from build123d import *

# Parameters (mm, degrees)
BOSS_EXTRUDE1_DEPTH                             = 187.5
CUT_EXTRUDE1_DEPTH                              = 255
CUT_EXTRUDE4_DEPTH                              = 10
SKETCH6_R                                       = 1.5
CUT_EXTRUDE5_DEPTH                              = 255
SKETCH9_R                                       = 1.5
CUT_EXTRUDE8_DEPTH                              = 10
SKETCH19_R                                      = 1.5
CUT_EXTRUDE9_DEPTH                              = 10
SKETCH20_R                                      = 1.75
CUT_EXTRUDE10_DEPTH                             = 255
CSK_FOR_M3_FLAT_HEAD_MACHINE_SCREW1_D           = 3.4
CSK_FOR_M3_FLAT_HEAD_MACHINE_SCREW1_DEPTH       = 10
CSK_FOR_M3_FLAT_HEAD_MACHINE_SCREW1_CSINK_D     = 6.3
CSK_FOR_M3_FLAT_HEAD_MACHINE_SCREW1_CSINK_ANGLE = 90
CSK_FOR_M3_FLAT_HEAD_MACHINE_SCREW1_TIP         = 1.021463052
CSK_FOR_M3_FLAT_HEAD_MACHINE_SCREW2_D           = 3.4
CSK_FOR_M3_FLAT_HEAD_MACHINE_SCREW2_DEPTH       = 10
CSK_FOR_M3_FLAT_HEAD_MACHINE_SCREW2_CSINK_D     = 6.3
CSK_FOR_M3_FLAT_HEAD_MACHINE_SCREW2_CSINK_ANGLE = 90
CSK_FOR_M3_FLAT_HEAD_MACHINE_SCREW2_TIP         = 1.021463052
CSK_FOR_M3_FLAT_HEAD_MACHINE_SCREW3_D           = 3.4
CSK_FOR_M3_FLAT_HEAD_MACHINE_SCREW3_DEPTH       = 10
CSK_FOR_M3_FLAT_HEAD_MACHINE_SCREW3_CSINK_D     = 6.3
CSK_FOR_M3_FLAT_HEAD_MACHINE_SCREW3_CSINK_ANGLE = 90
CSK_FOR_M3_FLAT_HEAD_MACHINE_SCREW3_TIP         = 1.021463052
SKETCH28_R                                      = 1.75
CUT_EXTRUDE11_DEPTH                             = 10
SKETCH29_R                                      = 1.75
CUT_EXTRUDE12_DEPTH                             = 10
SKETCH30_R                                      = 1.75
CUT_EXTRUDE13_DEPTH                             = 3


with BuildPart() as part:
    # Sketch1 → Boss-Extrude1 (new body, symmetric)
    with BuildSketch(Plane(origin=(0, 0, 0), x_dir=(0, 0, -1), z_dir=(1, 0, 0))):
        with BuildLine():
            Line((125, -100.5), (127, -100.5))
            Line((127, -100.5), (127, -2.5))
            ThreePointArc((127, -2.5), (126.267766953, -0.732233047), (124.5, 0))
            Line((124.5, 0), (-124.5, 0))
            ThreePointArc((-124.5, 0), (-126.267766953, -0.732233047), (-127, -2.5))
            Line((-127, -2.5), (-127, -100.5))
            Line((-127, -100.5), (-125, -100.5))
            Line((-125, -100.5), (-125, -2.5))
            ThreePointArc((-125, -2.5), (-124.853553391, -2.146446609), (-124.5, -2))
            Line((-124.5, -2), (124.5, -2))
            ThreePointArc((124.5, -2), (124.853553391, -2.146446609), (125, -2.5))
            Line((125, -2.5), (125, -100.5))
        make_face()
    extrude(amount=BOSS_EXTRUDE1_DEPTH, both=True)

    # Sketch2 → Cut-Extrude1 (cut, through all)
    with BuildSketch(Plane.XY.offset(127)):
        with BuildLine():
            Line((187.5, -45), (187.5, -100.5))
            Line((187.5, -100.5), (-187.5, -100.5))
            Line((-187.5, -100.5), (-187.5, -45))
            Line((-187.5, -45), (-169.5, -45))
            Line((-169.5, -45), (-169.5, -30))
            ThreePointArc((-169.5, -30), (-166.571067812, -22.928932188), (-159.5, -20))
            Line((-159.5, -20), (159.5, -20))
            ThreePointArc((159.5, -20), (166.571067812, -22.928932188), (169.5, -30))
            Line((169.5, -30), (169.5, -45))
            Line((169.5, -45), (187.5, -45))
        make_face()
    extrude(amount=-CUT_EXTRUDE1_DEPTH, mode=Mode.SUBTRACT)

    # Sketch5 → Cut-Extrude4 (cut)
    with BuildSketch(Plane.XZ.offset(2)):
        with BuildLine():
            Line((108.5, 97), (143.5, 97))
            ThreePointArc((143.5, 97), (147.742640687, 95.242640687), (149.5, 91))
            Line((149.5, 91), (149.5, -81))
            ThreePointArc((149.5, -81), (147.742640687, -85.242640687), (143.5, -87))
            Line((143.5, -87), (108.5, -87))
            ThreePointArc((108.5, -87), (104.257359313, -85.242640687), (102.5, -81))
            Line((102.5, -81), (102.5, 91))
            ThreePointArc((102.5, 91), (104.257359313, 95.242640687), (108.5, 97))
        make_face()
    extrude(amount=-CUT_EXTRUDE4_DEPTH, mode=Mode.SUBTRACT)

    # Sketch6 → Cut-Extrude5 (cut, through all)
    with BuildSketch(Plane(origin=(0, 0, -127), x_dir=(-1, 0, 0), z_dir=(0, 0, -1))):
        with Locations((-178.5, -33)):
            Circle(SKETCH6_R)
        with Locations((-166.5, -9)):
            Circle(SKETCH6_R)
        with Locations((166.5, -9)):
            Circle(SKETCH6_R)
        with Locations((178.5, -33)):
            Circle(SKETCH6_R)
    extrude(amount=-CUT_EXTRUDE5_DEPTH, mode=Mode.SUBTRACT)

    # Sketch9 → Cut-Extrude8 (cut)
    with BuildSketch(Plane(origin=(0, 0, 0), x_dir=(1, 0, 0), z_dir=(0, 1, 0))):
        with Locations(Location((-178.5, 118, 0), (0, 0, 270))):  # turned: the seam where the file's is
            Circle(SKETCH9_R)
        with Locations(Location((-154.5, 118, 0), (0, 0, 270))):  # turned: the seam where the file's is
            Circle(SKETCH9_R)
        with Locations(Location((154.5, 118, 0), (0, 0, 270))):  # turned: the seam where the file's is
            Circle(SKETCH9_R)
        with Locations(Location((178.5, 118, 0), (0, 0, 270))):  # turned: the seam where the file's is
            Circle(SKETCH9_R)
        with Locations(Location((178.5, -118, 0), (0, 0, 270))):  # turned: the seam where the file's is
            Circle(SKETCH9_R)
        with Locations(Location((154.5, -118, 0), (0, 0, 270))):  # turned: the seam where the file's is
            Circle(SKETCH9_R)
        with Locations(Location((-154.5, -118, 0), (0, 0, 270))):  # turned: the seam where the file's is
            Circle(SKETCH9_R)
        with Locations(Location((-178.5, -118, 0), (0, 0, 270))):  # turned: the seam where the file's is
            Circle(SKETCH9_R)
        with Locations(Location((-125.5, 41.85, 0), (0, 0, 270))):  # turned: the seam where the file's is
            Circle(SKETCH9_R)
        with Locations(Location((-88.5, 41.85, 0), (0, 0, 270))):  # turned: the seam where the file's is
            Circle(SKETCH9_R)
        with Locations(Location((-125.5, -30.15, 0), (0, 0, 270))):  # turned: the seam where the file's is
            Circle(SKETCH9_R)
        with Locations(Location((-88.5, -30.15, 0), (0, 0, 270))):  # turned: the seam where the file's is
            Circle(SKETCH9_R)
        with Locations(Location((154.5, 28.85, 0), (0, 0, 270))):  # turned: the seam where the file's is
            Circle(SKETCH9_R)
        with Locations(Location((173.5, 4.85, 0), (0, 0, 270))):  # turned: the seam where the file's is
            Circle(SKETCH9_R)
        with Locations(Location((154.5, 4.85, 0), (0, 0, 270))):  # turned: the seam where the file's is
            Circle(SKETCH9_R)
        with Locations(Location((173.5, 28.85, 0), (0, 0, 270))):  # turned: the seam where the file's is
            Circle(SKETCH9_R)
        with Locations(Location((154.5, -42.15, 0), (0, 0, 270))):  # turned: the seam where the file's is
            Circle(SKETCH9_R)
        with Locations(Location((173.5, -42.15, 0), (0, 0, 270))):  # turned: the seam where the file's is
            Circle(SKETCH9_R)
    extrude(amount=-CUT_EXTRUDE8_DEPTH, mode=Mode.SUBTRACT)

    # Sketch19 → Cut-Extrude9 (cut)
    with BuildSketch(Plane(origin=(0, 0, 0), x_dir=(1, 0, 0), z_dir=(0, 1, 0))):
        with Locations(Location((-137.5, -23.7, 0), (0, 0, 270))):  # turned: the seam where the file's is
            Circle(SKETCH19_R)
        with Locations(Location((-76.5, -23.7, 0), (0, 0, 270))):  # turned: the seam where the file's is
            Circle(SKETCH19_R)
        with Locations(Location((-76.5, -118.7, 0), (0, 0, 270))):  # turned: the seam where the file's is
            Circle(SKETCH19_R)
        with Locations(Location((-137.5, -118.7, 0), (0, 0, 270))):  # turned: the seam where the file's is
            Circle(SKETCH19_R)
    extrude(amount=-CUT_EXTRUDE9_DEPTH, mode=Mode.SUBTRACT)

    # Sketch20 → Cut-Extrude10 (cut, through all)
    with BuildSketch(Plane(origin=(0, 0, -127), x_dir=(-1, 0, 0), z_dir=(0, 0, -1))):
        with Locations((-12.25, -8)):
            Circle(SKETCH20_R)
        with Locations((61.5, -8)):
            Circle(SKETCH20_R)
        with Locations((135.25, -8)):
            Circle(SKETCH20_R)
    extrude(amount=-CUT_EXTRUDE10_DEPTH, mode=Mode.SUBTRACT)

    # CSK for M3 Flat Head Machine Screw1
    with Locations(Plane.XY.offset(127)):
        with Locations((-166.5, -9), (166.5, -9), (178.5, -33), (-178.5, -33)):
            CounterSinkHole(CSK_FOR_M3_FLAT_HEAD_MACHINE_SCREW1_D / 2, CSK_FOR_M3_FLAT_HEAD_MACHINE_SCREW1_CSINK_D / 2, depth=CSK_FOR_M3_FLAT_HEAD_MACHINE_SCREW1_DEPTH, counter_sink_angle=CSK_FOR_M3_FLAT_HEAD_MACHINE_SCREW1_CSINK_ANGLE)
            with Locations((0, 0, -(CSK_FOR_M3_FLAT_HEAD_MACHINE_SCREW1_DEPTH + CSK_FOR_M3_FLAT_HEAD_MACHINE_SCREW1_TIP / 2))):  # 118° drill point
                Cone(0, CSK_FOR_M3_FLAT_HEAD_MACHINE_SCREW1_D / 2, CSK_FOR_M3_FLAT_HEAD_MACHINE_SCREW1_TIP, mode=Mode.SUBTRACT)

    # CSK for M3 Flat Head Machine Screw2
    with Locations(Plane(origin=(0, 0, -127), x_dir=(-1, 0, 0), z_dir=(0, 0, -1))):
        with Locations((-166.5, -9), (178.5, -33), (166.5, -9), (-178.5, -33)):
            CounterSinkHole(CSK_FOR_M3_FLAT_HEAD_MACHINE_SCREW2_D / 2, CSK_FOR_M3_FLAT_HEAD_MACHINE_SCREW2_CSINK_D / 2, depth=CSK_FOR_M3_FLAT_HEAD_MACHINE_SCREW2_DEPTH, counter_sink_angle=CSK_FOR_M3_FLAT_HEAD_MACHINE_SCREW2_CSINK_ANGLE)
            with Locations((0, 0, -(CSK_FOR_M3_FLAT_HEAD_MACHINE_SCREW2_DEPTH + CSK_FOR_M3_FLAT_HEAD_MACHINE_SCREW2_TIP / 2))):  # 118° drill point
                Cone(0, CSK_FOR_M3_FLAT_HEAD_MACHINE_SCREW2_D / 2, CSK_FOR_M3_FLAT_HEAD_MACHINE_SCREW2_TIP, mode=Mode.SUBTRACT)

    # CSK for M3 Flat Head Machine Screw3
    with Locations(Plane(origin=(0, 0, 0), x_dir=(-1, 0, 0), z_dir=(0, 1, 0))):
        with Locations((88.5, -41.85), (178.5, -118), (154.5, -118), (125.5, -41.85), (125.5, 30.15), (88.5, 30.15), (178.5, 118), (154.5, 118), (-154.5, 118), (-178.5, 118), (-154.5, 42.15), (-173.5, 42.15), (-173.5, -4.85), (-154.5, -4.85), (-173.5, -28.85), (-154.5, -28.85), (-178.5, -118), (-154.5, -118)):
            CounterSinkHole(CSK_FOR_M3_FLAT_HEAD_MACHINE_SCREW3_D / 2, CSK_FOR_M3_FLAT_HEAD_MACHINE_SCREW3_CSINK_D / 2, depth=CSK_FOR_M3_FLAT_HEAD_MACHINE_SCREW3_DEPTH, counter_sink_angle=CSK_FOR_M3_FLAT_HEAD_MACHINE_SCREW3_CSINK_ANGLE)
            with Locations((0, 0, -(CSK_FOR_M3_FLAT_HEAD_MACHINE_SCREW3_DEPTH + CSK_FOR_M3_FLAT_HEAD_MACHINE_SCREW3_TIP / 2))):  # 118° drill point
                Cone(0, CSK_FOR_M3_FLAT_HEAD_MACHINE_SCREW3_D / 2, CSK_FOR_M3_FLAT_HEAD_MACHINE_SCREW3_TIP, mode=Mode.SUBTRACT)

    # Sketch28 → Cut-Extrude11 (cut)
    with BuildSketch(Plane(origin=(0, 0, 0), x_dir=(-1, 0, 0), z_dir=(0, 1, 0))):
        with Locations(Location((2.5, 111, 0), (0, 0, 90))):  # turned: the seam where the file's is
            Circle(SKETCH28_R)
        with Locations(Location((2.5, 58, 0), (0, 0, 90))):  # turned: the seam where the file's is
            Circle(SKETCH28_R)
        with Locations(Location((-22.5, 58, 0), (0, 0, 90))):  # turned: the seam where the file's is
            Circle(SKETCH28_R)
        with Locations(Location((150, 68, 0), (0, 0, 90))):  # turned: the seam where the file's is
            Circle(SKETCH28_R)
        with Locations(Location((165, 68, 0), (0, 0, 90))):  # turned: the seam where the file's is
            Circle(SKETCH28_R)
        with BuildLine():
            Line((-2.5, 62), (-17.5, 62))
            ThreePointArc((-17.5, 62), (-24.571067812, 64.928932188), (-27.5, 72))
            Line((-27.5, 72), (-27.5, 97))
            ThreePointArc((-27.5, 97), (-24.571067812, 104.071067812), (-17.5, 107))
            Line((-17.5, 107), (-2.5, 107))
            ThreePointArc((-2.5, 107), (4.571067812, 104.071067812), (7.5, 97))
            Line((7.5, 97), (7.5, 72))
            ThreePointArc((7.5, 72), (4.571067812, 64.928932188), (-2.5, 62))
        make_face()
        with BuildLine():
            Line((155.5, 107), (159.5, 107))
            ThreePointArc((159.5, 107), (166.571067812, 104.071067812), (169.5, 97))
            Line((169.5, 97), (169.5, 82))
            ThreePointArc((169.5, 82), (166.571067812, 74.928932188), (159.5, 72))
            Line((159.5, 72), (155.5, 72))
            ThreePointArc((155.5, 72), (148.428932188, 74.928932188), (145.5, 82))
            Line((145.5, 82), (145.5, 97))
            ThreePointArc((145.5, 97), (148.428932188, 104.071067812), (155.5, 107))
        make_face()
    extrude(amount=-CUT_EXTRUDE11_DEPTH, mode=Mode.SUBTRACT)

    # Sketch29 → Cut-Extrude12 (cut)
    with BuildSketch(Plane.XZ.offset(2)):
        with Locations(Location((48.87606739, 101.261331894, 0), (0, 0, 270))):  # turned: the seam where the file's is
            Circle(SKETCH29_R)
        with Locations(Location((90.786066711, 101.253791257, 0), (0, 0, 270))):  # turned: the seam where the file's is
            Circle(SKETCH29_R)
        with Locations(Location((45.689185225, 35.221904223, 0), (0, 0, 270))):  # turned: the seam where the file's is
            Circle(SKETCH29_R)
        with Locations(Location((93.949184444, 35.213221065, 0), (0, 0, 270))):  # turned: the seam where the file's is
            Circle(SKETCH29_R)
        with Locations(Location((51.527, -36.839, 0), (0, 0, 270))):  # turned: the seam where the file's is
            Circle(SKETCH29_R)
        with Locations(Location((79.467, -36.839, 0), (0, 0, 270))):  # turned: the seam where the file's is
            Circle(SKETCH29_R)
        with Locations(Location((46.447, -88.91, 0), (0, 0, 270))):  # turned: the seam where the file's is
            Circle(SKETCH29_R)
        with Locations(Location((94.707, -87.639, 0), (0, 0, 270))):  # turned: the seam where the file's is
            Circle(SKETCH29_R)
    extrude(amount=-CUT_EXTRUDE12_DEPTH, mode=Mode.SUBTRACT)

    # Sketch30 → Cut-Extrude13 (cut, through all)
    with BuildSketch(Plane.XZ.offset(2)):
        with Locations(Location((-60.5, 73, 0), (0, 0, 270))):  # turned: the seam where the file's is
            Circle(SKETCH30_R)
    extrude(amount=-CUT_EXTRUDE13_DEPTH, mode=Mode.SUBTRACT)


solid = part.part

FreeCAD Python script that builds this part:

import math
import FreeCAD as App
import Part
import Sketcher
Q = App.Units.Quantity

doc = App.newDocument("Part")
body = doc.addObject("PartDesign::Body", "Body")

# Sketch on YZ plane
sketch1 = doc.addObject("Sketcher::SketchObject", "Sketch")
body.addObject(sketch1)
sketch1.AttachmentSupport = (doc.YZ_Plane, [""])
sketch1.MapMode = "FlatFace"
sketch1.addGeometry(Part.LineSegment(App.Vector(-100.5, -125, 0), App.Vector(-100.5, -127, 0)), False)
sketch1.addGeometry(Part.LineSegment(App.Vector(-100.5, -127, 0), App.Vector(-2.5, -127, 0)), False)
sketch1.addGeometry(Part.ArcOfCircle(Part.Circle(App.Vector(-2.5, -124.5, 0), App.Vector(0, 0, 1), 2.5), math.radians(-90), math.radians(0)), False)
sketch1.addGeometry(Part.LineSegment(App.Vector(0, -124.5, 0), App.Vector(0, 124.5, 0)), False)
sketch1.addGeometry(Part.ArcOfCircle(Part.Circle(App.Vector(-2.5, 124.5, 0), App.Vector(0, 0, 1), 2.5), math.radians(0), math.radians(90)), False)
sketch1.addGeometry(Part.LineSegment(App.Vector(-2.5, 127, 0), App.Vector(-100.5, 127, 0)), False)
sketch1.addGeometry(Part.LineSegment(App.Vector(-100.5, 127, 0), App.Vector(-100.5, 125, 0)), False)
sketch1.addGeometry(Part.LineSegment(App.Vector(-100.5, 125, 0), App.Vector(-2.5, 125, 0)), False)
sketch1.addGeometry(Part.ArcOfCircle(Part.Circle(App.Vector(-2.5, 124.5, 0), App.Vector(0, 0, 1), 0.5), math.radians(0), math.radians(90)), False)
sketch1.addGeometry(Part.LineSegment(App.Vector(-2, 124.5, 0), App.Vector(-2, -124.5, 0)), False)
sketch1.addGeometry(Part.ArcOfCircle(Part.Circle(App.Vector(-2.5, -124.5, 0), App.Vector(0, 0, 1), 0.5), math.radians(-90), math.radians(0)), False)
sketch1.addGeometry(Part.LineSegment(App.Vector(-2.5, -125, 0), App.Vector(-100.5, -125, 0)), False)
sketch1.addConstraint(Sketcher.Constraint("Coincident", 0, 2, 1, 1))
sketch1.addConstraint(Sketcher.Constraint("Tangent", 1, 2, 2, 1))
sketch1.addConstraint(Sketcher.Constraint("Tangent", 2, 2, 3, 1))
sketch1.addConstraint(Sketcher.Constraint("Tangent", 3, 2, 4, 1))
sketch1.addConstraint(Sketcher.Constraint("Tangent", 4, 2, 5, 1))
sketch1.addConstraint(Sketcher.Constraint("Coincident", 5, 2, 6, 1))
sketch1.addConstraint(Sketcher.Constraint("Coincident", 6, 2, 7, 1))
sketch1.addConstraint(Sketcher.Constraint("Tangent", 7, 2, 8, 2))
sketch1.addConstraint(Sketcher.Constraint("Tangent", 8, 1, 9, 1))
sketch1.addConstraint(Sketcher.Constraint("Tangent", 9, 2, 10, 2))
sketch1.addConstraint(Sketcher.Constraint("Tangent", 10, 1, 11, 1))
sketch1.addConstraint(Sketcher.Constraint("Coincident", 11, 2, 0, 1))
sketch1.addConstraint(Sketcher.Constraint("Vertical", 0))
sketch1.addConstraint(Sketcher.Constraint("Horizontal", 1))
sketch1.addConstraint(Sketcher.Constraint("Vertical", 3))
sketch1.addConstraint(Sketcher.Constraint("Horizontal", 5))
sketch1.addConstraint(Sketcher.Constraint("Vertical", 6))
sketch1.addConstraint(Sketcher.Constraint("Horizontal", 7))
sketch1.addConstraint(Sketcher.Constraint("Vertical", 9))
sketch1.addConstraint(Sketcher.Constraint("Horizontal", 11))
sketch1.addConstraint(Sketcher.Constraint("Coincident", 8, 3, 4, 3))
sketch1.addConstraint(Sketcher.Constraint("Coincident", 10, 3, 2, 3))
sketch1.addConstraint(Sketcher.Constraint("Equal", 2, 4))
sketch1.addConstraint(Sketcher.Constraint("Symmetric", 2, 2, 3, 2, -1, 1))
sketch1.addConstraint(Sketcher.Constraint("Vertical", 0, 2, 5, 2))
sketch1.addConstraint(Sketcher.Constraint("Radius", 2, Q("2.5 mm")))
sketch1.addConstraint(Sketcher.Constraint("Radius", 8, Q("0.5 mm")))
sketch1.addConstraint(Sketcher.Constraint("DistanceX", 1, 1, 1, 2, Q("98 mm")))
sketch1.addConstraint(Sketcher.Constraint("DistanceY", 3, 1, 3, 2, Q("249 mm")))
pad1 = doc.addObject("PartDesign::Pad", "Pad")
body.addObject(pad1)
pad1.Profile = sketch1
pad1.Length = 375
pad1.Midplane = True

# Sketch on XY plane
sketch2 = doc.addObject("Sketcher::SketchObject", "Sketch001")
body.addObject(sketch2)
sketch2.AttachmentSupport = (doc.XY_Plane, [""])
sketch2.MapMode = "FlatFace"
sketch2.AttachmentOffset = App.Placement(App.Vector(0, 0, 127), App.Rotation())
sketch2.addGeometry(Part.LineSegment(App.Vector(188, -100, 0), App.Vector(188, -45, 0)), False)
sketch2.addGeometry(Part.LineSegment(App.Vector(188, -45, 0), App.Vector(170, -45, 0)), False)
sketch2.addGeometry(Part.LineSegment(App.Vector(170, -45, 0), App.Vector(170, -30, 0)), False)
sketch2.addGeometry(Part.ArcOfCircle(Part.Circle(App.Vector(160, -30, 0), App.Vector(0, 0, 1), 10), math.radians(0), math.radians(90)), False)
sketch2.addGeometry(Part.LineSegment(App.Vector(160, -20, 0), App.Vector(-160, -20, 0)), False)
sketch2.addGeometry(Part.ArcOfCircle(Part.Circle(App.Vector(-160, -30, 0), App.Vector(0, 0, 1), 10), math.radians(90), math.radians(180)), False)
sketch2.addGeometry(Part.LineSegment(App.Vector(-170, -30, 0), App.Vector(-170, -45, 0)), False)
sketch2.addGeometry(Part.LineSegment(App.Vector(-170, -45, 0), App.Vector(-188, -45, 0)), False)
sketch2.addGeometry(Part.LineSegment(App.Vector(-188, -45, 0), App.Vector(-188, -100, 0)), False)
sketch2.addGeometry(Part.LineSegment(App.Vector(-188, -100, 0), App.Vector(188, -100, 0)), False)
sketch2.addConstraint(Sketcher.Constraint("Coincident", 0, 2, 1, 1))
sketch2.addConstraint(Sketcher.Constraint("Coincident", 1, 2, 2, 1))
sketch2.addConstraint(Sketcher.Constraint("Tangent", 2, 2, 3, 1))
sketch2.addConstraint(Sketcher.Constraint("Tangent", 3, 2, 4, 1))
sketch2.addConstraint(Sketcher.Constraint("Tangent", 4, 2, 5, 1))
sketch2.addConstraint(Sketcher.Constraint("Tangent", 5, 2, 6, 1))
sketch2.addConstraint(Sketcher.Constraint("Coincident", 6, 2, 7, 1))
sketch2.addConstraint(Sketcher.Constraint("Coincident", 7, 2, 8, 1))
sketch2.addConstraint(Sketcher.Constraint("Coincident", 8, 2, 9, 1))
sketch2.addConstraint(Sketcher.Constraint("Coincident", 9, 2, 0, 1))
sketch2.addConstraint(Sketcher.Constraint("Vertical", 0))
sketch2.addConstraint(Sketcher.Constraint("Horizontal", 1))
sketch2.addConstraint(Sketcher.Constraint("Vertical", 2))
sketch2.addConstraint(Sketcher.Constraint("Horizontal", 4))
sketch2.addConstraint(Sketcher.Constraint("Vertical", 6))
sketch2.addConstraint(Sketcher.Constraint("Horizontal", 7))
sketch2.addConstraint(Sketcher.Constraint("Vertical", 8))
sketch2.addConstraint(Sketcher.Constraint("Horizontal", 9))
sketch2.addConstraint(Sketcher.Constraint("Equal", 3, 5))
sketch2.addConstraint(Sketcher.Constraint("Symmetric", 1, 2, 6, 2, -2))
sketch2.addConstraint(Sketcher.Constraint("Equal", 1, 7))
sketch2.addConstraint(Sketcher.Constraint("Radius", 3, Q("10 mm")))
sketch2.addConstraint(Sketcher.Constraint("DistanceX", 1, 2, 1, 1, Q("18 mm")))
sketch2.addConstraint(Sketcher.Constraint("DistanceX", 4, 2, 4, 1, Q("319 mm")))
sketch2.addConstraint(Sketcher.Constraint("DistanceY", 2, 1, 2, 2, Q("15 mm")))
sketch2.addConstraint(Sketcher.Constraint("DistanceY", 0, 1, 0, 2, Q("55.5 mm")))
sketch2.addConstraint(Sketcher.Constraint("DistanceY", 3, 3, -1, 1, Q("30 mm")))
pocket1 = doc.addObject("PartDesign::Pocket", "Pocket")
body.addObject(pocket1)
pocket1.Profile = sketch2
pocket1.Type = "ThroughAll"

# Sketch on XZ plane
sketch3 = doc.addObject("Sketcher::SketchObject", "Sketch002")
body.addObject(sketch3)
sketch3.AttachmentSupport = (doc.XZ_Plane, [""])
sketch3.MapMode = "FlatFace"
sketch3.AttachmentOffset = App.Placement(App.Vector(0, 0, 2), App.Rotation())
sketch3.addGeometry(Part.LineSegment(App.Vector(144, 97, 0), App.Vector(108, 97, 0)), False)
sketch3.addGeometry(Part.ArcOfCircle(Part.Circle(App.Vector(108, 91, 0), App.Vector(0, 0, 1), 6), math.radians(90), math.radians(180)), False)
sketch3.addGeometry(Part.LineSegment(App.Vector(102, 91, 0), App.Vector(102, -81, 0)), False)
sketch3.addGeometry(Part.ArcOfCircle(Part.Circle(App.Vector(108, -81, 0), App.Vector(0, 0, 1), 6), math.radians(180), math.radians(270)), False)
sketch3.addGeometry(Part.LineSegment(App.Vector(108, -87, 0), App.Vector(144, -87, 0)), False)
sketch3.addGeometry(Part.ArcOfCircle(Part.Circle(App.Vector(144, -81, 0), App.Vector(0, 0, 1), 6), math.radians(-90), math.radians(0)), False)
sketch3.addGeometry(Part.LineSegment(App.Vector(150, -81, 0), App.Vector(150, 91, 0)), False)
sketch3.addGeometry(Part.ArcOfCircle(Part.Circle(App.Vector(144, 91, 0), App.Vector(0, 0, 1), 6), math.radians(0), math.radians(90)), False)
sketch3.addConstraint(Sketcher.Constraint("Tangent", 0, 2, 1, 1))
sketch3.addConstraint(Sketcher.Constraint("Tangent", 1, 2, 2, 1))
sketch3.addConstraint(Sketcher.Constraint("Tangent", 2, 2, 3, 1))
sketch3.addConstraint(Sketcher.Constraint("Tangent", 3, 2, 4, 1))
sketch3.addConstraint(Sketcher.Constraint("Tangent", 4, 2, 5, 1))
sketch3.addConstraint(Sketcher.Constraint("Tangent", 5, 2, 6, 1))
sketch3.addConstraint(Sketcher.Constraint("Tangent", 6, 2, 7, 1))
sketch3.addConstraint(Sketcher.Constraint("Tangent", 7, 2, 0, 1))
sketch3.addConstraint(Sketcher.Constraint("Horizontal", 0))
sketch3.addConstraint(Sketcher.Constraint("Vertical", 2))
sketch3.addConstraint(Sketcher.Constraint("Horizontal", 4))
sketch3.addConstraint(Sketcher.Constraint("Vertical", 6))
sketch3.addConstraint(Sketcher.Constraint("Equal", 1, 3))
sketch3.addConstraint(Sketcher.Constraint("Equal", 3, 5))
sketch3.addConstraint(Sketcher.Constraint("Equal", 5, 7))
sketch3.addConstraint(Sketcher.Constraint("Radius", 1, Q("6 mm")))
sketch3.addConstraint(Sketcher.Constraint("DistanceX", 0, 2, 0, 1, Q("35 mm")))
sketch3.addConstraint(Sketcher.Constraint("DistanceY", 2, 2, 2, 1, Q("172 mm")))
sketch3.addConstraint(Sketcher.Constraint("DistanceY", -1, 1, 1, 3, Q("91 mm")))
sketch3.addConstraint(Sketcher.Constraint("DistanceX", -1, 1, 1, 3, Q("108.5 mm")))
pocket2 = doc.addObject("PartDesign::Pocket", "Pocket001")
body.addObject(pocket2)
pocket2.Profile = sketch3
pocket2.Length = 10

# Sketch on XY plane
sketch4 = doc.addObject("Sketcher::SketchObject", "Sketch003")
body.addObject(sketch4)
sketch4.AttachmentSupport = (doc.XY_Plane, [""])
sketch4.MapMode = "FlatFace"
sketch4.AttachmentOffset = App.Placement(App.Vector(0, 0, -127), App.Rotation())
sketch4.addGeometry(Part.Circle(App.Vector(178.5, -33, 0), App.Vector(0, 0, 1), 1.5), False)
sketch4.addGeometry(Part.Circle(App.Vector(166.5, -9, 0), App.Vector(0, 0, 1), 1.5), False)
sketch4.addGeometry(Part.Circle(App.Vector(-166.5, -9, 0), App.Vector(0, 0, 1), 1.5), False)
sketch4.addGeometry(Part.Circle(App.Vector(-178.5, -33, 0), App.Vector(0, 0, 1), 1.5), False)
sketch4.addConstraint(Sketcher.Constraint("Equal", 0, 1))
sketch4.addConstraint(Sketcher.Constraint("Equal", 1, 2))
sketch4.addConstraint(Sketcher.Constraint("Equal", 2, 3))
sketch4.addConstraint(Sketcher.Constraint("Symmetric", 1, 3, 2, 3, -2))
sketch4.addConstraint(Sketcher.Constraint("Symmetric", 0, 3, 3, 3, -2))
sketch4.addConstraint(Sketcher.Constraint("Diameter", 0, Q("3 mm")))
sketch4.addConstraint(Sketcher.Constraint("DistanceY", 0, 3, -1, 1, Q("33 mm")))
sketch4.addConstraint(Sketcher.Constraint("DistanceY", 1, 3, -1, 1, Q("9 mm")))
sketch4.addConstraint(Sketcher.Constraint("DistanceX", 1, 3, 0, 3, Q("12 mm")))
sketch4.addConstraint(Sketcher.Constraint("DistanceX", 2, 3, 1, 3, Q("333 mm")))
pocket3 = doc.addObject("PartDesign::Pocket", "Pocket002")
body.addObject(pocket3)
pocket3.Profile = sketch4
pocket3.Type = "ThroughAll"
pocket3.Reversed = True

# Sketch on XZ plane
sketch5 = doc.addObject("Sketcher::SketchObject", "Sketch004")
body.addObject(sketch5)
sketch5.AttachmentSupport = (doc.XZ_Plane, [""])
sketch5.MapMode = "FlatFace"
sketch5.addGeometry(Part.Circle(App.Vector(-178.5, -118, 0), App.Vector(0, 0, 1), 1.5), False)
sketch5.addGeometry(Part.Circle(App.Vector(-154.5, -118, 0), App.Vector(0, 0, 1), 1.5), False)
sketch5.addGeometry(Part.Circle(App.Vector(154.5, -118, 0), App.Vector(0, 0, 1), 1.5), False)
sketch5.addGeometry(Part.Circle(App.Vector(178.5, -118, 0), App.Vector(0, 0, 1), 1.5), False)
sketch5.addGeometry(Part.Circle(App.Vector(178.5, 118, 0), App.Vector(0, 0, 1), 1.5), False)
sketch5.addGeometry(Part.Circle(App.Vector(154.5, 118, 0), App.Vector(0, 0, 1), 1.5), False)
sketch5.addGeometry(Part.Circle(App.Vector(-154.5, 118, 0), App.Vector(0, 0, 1), 1.5), False)
sketch5.addGeometry(Part.Circle(App.Vector(-178.5, 118, 0), App.Vector(0, 0, 1), 1.5), False)
sketch5.addGeometry(Part.Circle(App.Vector(-125.5, -41.9, 0), App.Vector(0, 0, 1), 1.5), False)
sketch5.addGeometry(Part.Circle(App.Vector(-88.5, -41.9, 0), App.Vector(0, 0, 1), 1.5), False)
sketch5.addGeometry(Part.Circle(App.Vector(-125.5, 30.1, 0), App.Vector(0, 0, 1), 1.5), False)
sketch5.addGeometry(Part.Circle(App.Vector(-88.5, 30.1, 0), App.Vector(0, 0, 1), 1.5), False)
sketch5.addGeometry(Part.Circle(App.Vector(154.5, -28.9, 0), App.Vector(0, 0, 1), 1.5), False)
sketch5.addGeometry(Part.Circle(App.Vector(173.5, -4.8, 0), App.Vector(0, 0, 1), 1.5), False)
sketch5.addGeometry(Part.Circle(App.Vector(154.5, -4.8, 0), App.Vector(0, 0, 1), 1.5), False)
sketch5.addGeometry(Part.Circle(App.Vector(173.5, -28.9, 0), App.Vector(0, 0, 1), 1.5), False)
sketch5.addGeometry(Part.Circle(App.Vector(154.5, 42.1, 0), App.Vector(0, 0, 1), 1.5), False)
sketch5.addGeometry(Part.Circle(App.Vector(173.5, 42.1, 0), App.Vector(0, 0, 1), 1.5), False)
sketch5.addConstraint(Sketcher.Constraint("Equal", 0, 1))
sketch5.addConstraint(Sketcher.Constraint("Equal", 1, 2))
sketch5.addConstraint(Sketcher.Constraint("Equal", 2, 3))
sketch5.addConstraint(Sketcher.Constraint("Equal", 3, 4))
sketch5.addConstraint(Sketcher.Constraint("Equal", 4, 5))
sketch5.addConstraint(Sketcher.Constraint("Equal", 5, 6))
sketch5.addConstraint(Sketcher.Constraint("Equal", 6, 7))
sketch5.addConstraint(Sketcher.Constraint("Equal", 7, 8))
sketch5.addConstraint(Sketcher.Constraint("Equal", 8, 9))
sketch5.addConstraint(Sketcher.Constraint("Equal", 9, 10))
sketch5.addConstraint(Sketcher.Constraint("Equal", 10, 11))
sketch5.addConstraint(Sketcher.Constraint("Equal", 11, 12))
sketch5.addConstraint(Sketcher.Constraint("Equal", 12, 13))
sketch5.addConstraint(Sketcher.Constraint("Equal", 13, 14))
sketch5.addConstraint(Sketcher.Constraint("Equal", 14, 15))
sketch5.addConstraint(Sketcher.Constraint("Equal", 15, 16))
sketch5.addConstraint(Sketcher.Constraint("Equal", 16, 17))
sketch5.addConstraint(Sketcher.Constraint("Symmetric", 0, 3, 4, 3, -1, 1))
sketch5.addConstraint(Sketcher.Constraint("Symmetric", 1, 3, 5, 3, -1, 1))
sketch5.addConstraint(Sketcher.Constraint("Symmetric", 2, 3, 6, 3, -1, 1))
sketch5.addConstraint(Sketcher.Constraint("Symmetric", 3, 3, 7, 3, -1, 1))
sketch5.addConstraint(Sketcher.Constraint("Symmetric", 1, 3, 2, 3, -2))
sketch5.addConstraint(Sketcher.Constraint("Symmetric", 0, 3, 3, 3, -2))
sketch5.addConstraint(Sketcher.Constraint("Horizontal", 0, 3, 1, 3))
sketch5.addConstraint(Sketcher.Constraint("Horizontal", 8, 3, 9, 3))
sketch5.addConstraint(Sketcher.Constraint("Horizontal", 10, 3, 11, 3))
sketch5.addConstraint(Sketcher.Constraint("Horizontal", 13, 3, 14, 3))
sketch5.addConstraint(Sketcher.Constraint("Horizontal", 12, 3, 15, 3))
sketch5.addConstraint(Sketcher.Constraint("Horizontal", 16, 3, 17, 3))
sketch5.addConstraint(Sketcher.Constraint("Vertical", 8, 3, 10, 3))
sketch5.addConstraint(Sketcher.Constraint("Vertical", 9, 3, 11, 3))
sketch5.addConstraint(Sketcher.Constraint("Vertical", 5, 3, 12, 3))
sketch5.addConstraint(Sketcher.Constraint("Vertical", 12, 3, 14, 3))
sketch5.addConstraint(Sketcher.Constraint("Vertical", 13, 3, 15, 3))
sketch5.addConstraint(Sketcher.Constraint("Vertical", 14, 3, 16, 3))
sketch5.addConstraint(Sketcher.Constraint("Vertical", 15, 3, 17, 3))
sketch5.addConstraint(Sketcher.Constraint("Diameter", 0, Q("3 mm")))
sketch5.addConstraint(Sketcher.Constraint("DistanceY", 0, 3, -1, 1, Q("118 mm")))
sketch5.addConstraint(Sketcher.Constraint("DistanceX", 0, 3, 1, 3, Q("24 mm")))
sketch5.addConstraint(Sketcher.Constraint("DistanceX", 1, 3, 2, 3, Q("309 mm")))
sketch5.addConstraint(Sketcher.Constraint("DistanceX", 1, 3, 8, 3, Q("29 mm")))
sketch5.addConstraint(Sketcher.Constraint("DistanceX", 8, 3, 9, 3, Q("37 mm")))
sketch5.addConstraint(Sketcher.Constraint("DistanceY", 8, 3, 10, 3, Q("72 mm")))
sketch5.addConstraint(Sketcher.Constraint("DistanceY", 9, 3, 12, 3, Q("13 mm")))
sketch5.addConstraint(Sketcher.Constraint("DistanceX", 12, 3, 13, 3, Q("19 mm")))
sketch5.addConstraint(Sketcher.Constraint("DistanceY", 12, 3, 13, 3, Q("24 mm")))
sketch5.addConstraint(Sketcher.Constraint("DistanceY", 14, 3, 16, 3, Q("47 mm")))
sketch5.addConstraint(Sketcher.Constraint("DistanceY", 8, 3, -1, 1, Q("41.85 mm")))
pocket4 = doc.addObject("PartDesign::Pocket", "Pocket003")
body.addObject(pocket4)
pocket4.Profile = sketch5
pocket4.Length = 10
pocket4.Reversed = True

# Sketch on XZ plane
sketch6 = doc.addObject("Sketcher::SketchObject", "Sketch005")
body.addObject(sketch6)
sketch6.AttachmentSupport = (doc.XZ_Plane, [""])
sketch6.MapMode = "FlatFace"
sketch6.addGeometry(Part.Circle(App.Vector(-137.5, 23.7, 0), App.Vector(0, 0, 1), 1.5), False)
sketch6.addGeometry(Part.Circle(App.Vector(-76.5, 23.7, 0), App.Vector(0, 0, 1), 1.5), False)
sketch6.addGeometry(Part.Circle(App.Vector(-76.5, 118.7, 0), App.Vector(0, 0, 1), 1.5), False)
sketch6.addGeometry(Part.Circle(App.Vector(-137.5, 118.7, 0), App.Vector(0, 0, 1), 1.5), False)
sketch6.addConstraint(Sketcher.Constraint("Equal", 0, 1))
sketch6.addConstraint(Sketcher.Constraint("Equal", 1, 2))
sketch6.addConstraint(Sketcher.Constraint("Equal", 2, 3))
sketch6.addConstraint(Sketcher.Constraint("Horizontal", 0, 3, 1, 3))
sketch6.addConstraint(Sketcher.Constraint("Horizontal", 2, 3, 3, 3))
sketch6.addConstraint(Sketcher.Constraint("Vertical", 1, 3, 2, 3))
sketch6.addConstraint(Sketcher.Constraint("Vertical", 0, 3, 3, 3))
sketch6.addConstraint(Sketcher.Constraint("Diameter", 0, Q("3 mm")))
sketch6.addConstraint(Sketcher.Constraint("DistanceX", 0, 3, 1, 3, Q("61 mm")))
sketch6.addConstraint(Sketcher.Constraint("DistanceY", 1, 3, 2, 3, Q("95 mm")))
sketch6.addConstraint(Sketcher.Constraint("DistanceX", 0, 3, -1, 1, Q("137.5 mm")))
sketch6.addConstraint(Sketcher.Constraint("DistanceY", -1, 1, 0, 3, Q("23.7 mm")))
pocket5 = doc.addObject("PartDesign::Pocket", "Pocket004")
body.addObject(pocket5)
pocket5.Profile = sketch6
pocket5.Length = 10
pocket5.Reversed = True

# Sketch on XY plane
sketch7 = doc.addObject("Sketcher::SketchObject", "Sketch006")
body.addObject(sketch7)
sketch7.AttachmentSupport = (doc.XY_Plane, [""])
sketch7.MapMode = "FlatFace"
sketch7.AttachmentOffset = App.Placement(App.Vector(0, 0, -127), App.Rotation())
sketch7.addGeometry(Part.Circle(App.Vector(12.2, -8, 0), App.Vector(0, 0, 1), 1.8), False)
sketch7.addGeometry(Part.Circle(App.Vector(-61.5, -8, 0), App.Vector(0, 0, 1), 1.8), False)
sketch7.addGeometry(Part.Circle(App.Vector(-135.2, -8, 0), App.Vector(0, 0, 1), 1.8), False)
sketch7.addConstraint(Sketcher.Constraint("Equal", 0, 1))
sketch7.addConstraint(Sketcher.Constraint("Equal", 1, 2))
sketch7.addConstraint(Sketcher.Constraint("Horizontal", 0, 3, 1, 3))
sketch7.addConstraint(Sketcher.Constraint("Horizontal", 1, 3, 2, 3))
sketch7.addConstraint(Sketcher.Constraint("Diameter", 0, Q("3.5 mm")))
sketch7.addConstraint(Sketcher.Constraint("DistanceY", 0, 3, -1, 1, Q("8 mm")))
sketch7.addConstraint(Sketcher.Constraint("DistanceX", 1, 3, -1, 1, Q("61.5 mm")))
sketch7.addConstraint(Sketcher.Constraint("DistanceX", 2, 3, 0, 3, Q("147.5 mm")))
sketch7.addConstraint(Sketcher.Constraint("DistanceX", -1, 1, 0, 3, Q("12.25 mm")))
pocket6 = doc.addObject("PartDesign::Pocket", "Pocket005")
body.addObject(pocket6)
pocket6.Profile = sketch7
pocket6.Type = "ThroughAll"
pocket6.Reversed = True

# Sketch on XY plane
sketch8 = doc.addObject("Sketcher::SketchObject", "Sketch007")
body.addObject(sketch8)
sketch8.AttachmentSupport = (doc.XY_Plane, [""])
sketch8.MapMode = "FlatFace"
sketch8.AttachmentOffset = App.Placement(App.Vector(0, 0, 127), App.Rotation())
sketch8.addGeometry(Part.Circle(App.Vector(-166.5, -9, 0), App.Vector(0, 0, 1), 1.7), False)
sketch8.addGeometry(Part.Circle(App.Vector(166.5, -9, 0), App.Vector(0, 0, 1), 1.7), False)
sketch8.addGeometry(Part.Circle(App.Vector(178.5, -33, 0), App.Vector(0, 0, 1), 1.7), False)
sketch8.addGeometry(Part.Circle(App.Vector(-178.5, -33, 0), App.Vector(0, 0, 1), 1.7), False)
sketch8.addConstraint(Sketcher.Constraint("Equal", 0, 1))
sketch8.addConstraint(Sketcher.Constraint("Equal", 1, 2))
sketch8.addConstraint(Sketcher.Constraint("Equal", 2, 3))
sketch8.addConstraint(Sketcher.Constraint("Symmetric", 0, 3, 1, 3, -2))
sketch8.addConstraint(Sketcher.Constraint("Symmetric", 2, 3, 3, 3, -2))
sketch8.addConstraint(Sketcher.Constraint("Diameter", 0, Q("3.4 mm")))
sketch8.addConstraint(Sketcher.Constraint("DistanceY", 0, 3, -1, 1, Q("9 mm")))
sketch8.addConstraint(Sketcher.Constraint("DistanceY", 2, 3, -1, 1, Q("33 mm")))
sketch8.addConstraint(Sketcher.Constraint("DistanceX", 0, 3, 1, 3, Q("333 mm")))
sketch8.addConstraint(Sketcher.Constraint("DistanceX", 1, 3, 2, 3, Q("12 mm")))
doc.recompute()
hole = doc.addObject("PartDesign::Hole", "Hole")
body.addObject(hole)
hole.Profile = sketch8
hole.ThreadType = "None"
hole.Diameter = 3.4
hole.DepthType = "Dimension"
hole.Depth = 10
hole.DrillPoint = "Angled"
hole.DrillPointAngle = 118
hole.HoleCutType = "Countersink"
hole.HoleCutDiameter = 6.3
hole.HoleCutCountersinkAngle = 90

# Sketch on XY plane
sketch9 = doc.addObject("Sketcher::SketchObject", "Sketch008")
body.addObject(sketch9)
sketch9.AttachmentSupport = (doc.XY_Plane, [""])
sketch9.MapMode = "FlatFace"
sketch9.AttachmentOffset = App.Placement(App.Vector(0, 0, -127), App.Rotation())
sketch9.addGeometry(Part.Circle(App.Vector(166.5, -9, 0), App.Vector(0, 0, 1), 1.7), False)
sketch9.addGeometry(Part.Circle(App.Vector(-178.5, -33, 0), App.Vector(0, 0, 1), 1.7), False)
sketch9.addGeometry(Part.Circle(App.Vector(-166.5, -9, 0), App.Vector(0, 0, 1), 1.7), False)
sketch9.addGeometry(Part.Circle(App.Vector(178.5, -33, 0), App.Vector(0, 0, 1), 1.7), False)
sketch9.addConstraint(Sketcher.Constraint("Equal", 0, 1))
sketch9.addConstraint(Sketcher.Constraint("Equal", 1, 2))
sketch9.addConstraint(Sketcher.Constraint("Equal", 2, 3))
sketch9.addConstraint(Sketcher.Constraint("Symmetric", 0, 3, 2, 3, -2))
sketch9.addConstraint(Sketcher.Constraint("Symmetric", 1, 3, 3, 3, -2))
sketch9.addConstraint(Sketcher.Constraint("Diameter", 0, Q("3.4 mm")))
sketch9.addConstraint(Sketcher.Constraint("DistanceY", 0, 3, -1, 1, Q("9 mm")))
sketch9.addConstraint(Sketcher.Constraint("DistanceY", 1, 3, -1, 1, Q("33 mm")))
sketch9.addConstraint(Sketcher.Constraint("DistanceX", 1, 3, 0, 3, Q("345 mm")))
sketch9.addConstraint(Sketcher.Constraint("DistanceX", 1, 3, 2, 3, Q("12 mm")))
doc.recompute()
hole2 = doc.addObject("PartDesign::Hole", "Hole001")
body.addObject(hole2)
hole2.Profile = sketch9
hole2.ThreadType = "None"
hole2.Diameter = 3.4
hole2.DepthType = "Dimension"
hole2.Depth = 10
hole2.DrillPoint = "Angled"
hole2.DrillPointAngle = 118
hole2.HoleCutType = "Countersink"
hole2.HoleCutDiameter = 6.3
hole2.HoleCutCountersinkAngle = 90
hole2.Reversed = True

# Sketch on XZ plane
sketch10 = doc.addObject("Sketcher::SketchObject", "Sketch009")
body.addObject(sketch10)
sketch10.AttachmentSupport = (doc.XZ_Plane, [""])
sketch10.MapMode = "FlatFace"
sketch10.addGeometry(Part.Circle(App.Vector(-88.5, -41.9, 0), App.Vector(0, 0, 1), 1.7), False)
sketch10.addGeometry(Part.Circle(App.Vector(-178.5, -118, 0), App.Vector(0, 0, 1), 1.7), False)
sketch10.addGeometry(Part.Circle(App.Vector(-154.5, -118, 0), App.Vector(0, 0, 1), 1.7), False)
sketch10.addGeometry(Part.Circle(App.Vector(-125.5, -41.9, 0), App.Vector(0, 0, 1), 1.7), False)
sketch10.addGeometry(Part.Circle(App.Vector(-125.5, 30.1, 0), App.Vector(0, 0, 1), 1.7), False)
sketch10.addGeometry(Part.Circle(App.Vector(-88.5, 30.1, 0), App.Vector(0, 0, 1), 1.7), False)
sketch10.addGeometry(Part.Circle(App.Vector(-178.5, 118, 0), App.Vector(0, 0, 1), 1.7), False)
sketch10.addGeometry(Part.Circle(App.Vector(-154.5, 118, 0), App.Vector(0, 0, 1), 1.7), False)
sketch10.addGeometry(Part.Circle(App.Vector(154.5, 118, 0), App.Vector(0, 0, 1), 1.7), False)
sketch10.addGeometry(Part.Circle(App.Vector(178.5, 118, 0), App.Vector(0, 0, 1), 1.7), False)
sketch10.addGeometry(Part.Circle(App.Vector(154.5, 42.1, 0), App.Vector(0, 0, 1), 1.7), False)
sketch10.addGeometry(Part.Circle(App.Vector(173.5, 42.1, 0), App.Vector(0, 0, 1), 1.7), False)
sketch10.addGeometry(Part.Circle(App.Vector(173.5, -4.8, 0), App.Vector(0, 0, 1), 1.7), False)
sketch10.addGeometry(Part.Circle(App.Vector(154.5, -4.8, 0), App.Vector(0, 0, 1), 1.7), False)
sketch10.addGeometry(Part.Circle(App.Vector(173.5, -28.9, 0), App.Vector(0, 0, 1), 1.7), False)
sketch10.addGeometry(Part.Circle(App.Vector(154.5, -28.9, 0), App.Vector(0, 0, 1), 1.7), False)
sketch10.addGeometry(Part.Circle(App.Vector(178.5, -118, 0), App.Vector(0, 0, 1), 1.7), False)
sketch10.addGeometry(Part.Circle(App.Vector(154.5, -118, 0), App.Vector(0, 0, 1), 1.7), False)
sketch10.addConstraint(Sketcher.Constraint("Equal", 0, 1))
sketch10.addConstraint(Sketcher.Constraint("Equal", 1, 2))
sketch10.addConstraint(Sketcher.Constraint("Equal", 2, 3))
sketch10.addConstraint(Sketcher.Constraint("Equal", 3, 4))
sketch10.addConstraint(Sketcher.Constraint("Equal", 4, 5))
sketch10.addConstraint(Sketcher.Constraint("Equal", 5, 6))
sketch10.addConstraint(Sketcher.Constraint("Equal", 6, 7))
sketch10.addConstraint(Sketcher.Constraint("Equal", 7, 8))
sketch10.addConstraint(Sketcher.Constraint("Equal", 8, 9))
sketch10.addConstraint(Sketcher.Constraint("Equal", 9, 10))
sketch10.addConstraint(Sketcher.Constraint("Equal", 10, 11))
sketch10.addConstraint(Sketcher.Constraint("Equal", 11, 12))
sketch10.addConstraint(Sketcher.Constraint("Equal", 12, 13))
sketch10.addConstraint(Sketcher.Constraint("Equal", 13, 14))
sketch10.addConstraint(Sketcher.Constraint("Equal", 14, 15))
sketch10.addConstraint(Sketcher.Constraint("Equal", 15, 16))
sketch10.addConstraint(Sketcher.Constraint("Equal", 16, 17))
sketch10.addConstraint(Sketcher.Constraint("Symmetric", 2, 3, 8, 3, -1, 1))
sketch10.addConstraint(Sketcher.Constraint("Symmetric", 1, 3, 9, 3, -1, 1))
sketch10.addConstraint(Sketcher.Constraint("Symmetric", 6, 3, 16, 3, -1, 1))
sketch10.addConstraint(Sketcher.Constraint("Symmetric", 7, 3, 17, 3, -1, 1))
sketch10.addConstraint(Sketcher.Constraint("Symmetric", 7, 3, 8, 3, -2))
sketch10.addConstraint(Sketcher.Constraint("Symmetric", 6, 3, 9, 3, -2))
sketch10.addConstraint(Sketcher.Constraint("Horizontal", 1, 3, 2, 3))
sketch10.addConstraint(Sketcher.Constraint("Horizontal", 0, 3, 3, 3))
sketch10.addConstraint(Sketcher.Constraint("Horizontal", 4, 3, 5, 3))
sketch10.addConstraint(Sketcher.Constraint("Horizontal", 10, 3, 11, 3))
sketch10.addConstraint(Sketcher.Constraint("Horizontal", 12, 3, 13, 3))
sketch10.addConstraint(Sketcher.Constraint("Horizontal", 14, 3, 15, 3))
sketch10.addConstraint(Sketcher.Constraint("Vertical", 3, 3, 4, 3))
sketch10.addConstraint(Sketcher.Constraint("Vertical", 0, 3, 5, 3))
sketch10.addConstraint(Sketcher.Constraint("Vertical", 8, 3, 10, 3))
sketch10.addConstraint(Sketcher.Constraint("Vertical", 11, 3, 12, 3))
sketch10.addConstraint(Sketcher.Constraint("Vertical", 10, 3, 13, 3))
sketch10.addConstraint(Sketcher.Constraint("Vertical", 12, 3, 14, 3))
sketch10.addConstraint(Sketcher.Constraint("Vertical", 13, 3, 15, 3))
sketch10.addConstraint(Sketcher.Constraint("Diameter", 0, Q("3.4 mm")))
sketch10.addConstraint(Sketcher.Constraint("DistanceY", 1, 3, -1, 1, Q("118 mm")))
sketch10.addConstraint(Sketcher.Constraint("DistanceX", 1, 3, 0, 3, Q("90 mm")))
sketch10.addConstraint(Sketcher.Constraint("DistanceX", 1, 3, 2, 3, Q("24 mm")))
sketch10.addConstraint(Sketcher.Constraint("DistanceX", 3, 3, 0, 3, Q("37 mm")))
sketch10.addConstraint(Sketcher.Constraint("DistanceY", 3, 3, 4, 3, Q("72 mm")))
sketch10.addConstraint(Sketcher.Constraint("DistanceX", 5, 3, 8, 3, Q("243 mm")))
sketch10.addConstraint(Sketcher.Constraint("DistanceY", 5, 3, 10, 3, Q("12 mm")))
sketch10.addConstraint(Sketcher.Constraint("DistanceX", 10, 3, 11, 3, Q("19 mm")))
sketch10.addConstraint(Sketcher.Constraint("DistanceY", 12, 3, 11, 3, Q("47 mm")))
sketch10.addConstraint(Sketcher.Constraint("DistanceY", 14, 3, 12, 3, Q("24 mm")))
sketch10.addConstraint(Sketcher.Constraint("DistanceY", 0, 3, -1, 1, Q("41.85 mm")))
doc.recompute()
hole3 = doc.addObject("PartDesign::Hole", "Hole002")
body.addObject(hole3)
hole3.Profile = sketch10
hole3.ThreadType = "None"
hole3.Diameter = 3.4
hole3.DepthType = "Dimension"
hole3.Depth = 10
hole3.DrillPoint = "Angled"
hole3.DrillPointAngle = 118
hole3.HoleCutType = "Countersink"
hole3.HoleCutDiameter = 6.3
hole3.HoleCutCountersinkAngle = 90
hole3.Reversed = True

# Sketch on XZ plane
sketch11 = doc.addObject("Sketcher::SketchObject", "Sketch010")
body.addObject(sketch11)
sketch11.AttachmentSupport = (doc.XZ_Plane, [""])
sketch11.MapMode = "FlatFace"
sketch11.addGeometry(Part.Circle(App.Vector(-2.5, 111, 0), App.Vector(0, 0, 1), 1.8), False)
sketch11.addGeometry(Part.Circle(App.Vector(-2.5, 58, 0), App.Vector(0, 0, 1), 1.8), False)
sketch11.addGeometry(Part.Circle(App.Vector(22.5, 58, 0), App.Vector(0, 0, 1), 1.8), False)
sketch11.addGeometry(Part.Circle(App.Vector(-150, 68, 0), App.Vector(0, 0, 1), 1.8), False)
sketch11.addGeometry(Part.Circle(App.Vector(-165, 68, 0), App.Vector(0, 0, 1), 1.8), False)
sketch11.addGeometry(Part.LineSegment(App.Vector(17.5, 62, 0), App.Vector(2.5, 62, 0)), False)
sketch11.addGeometry(Part.ArcOfCircle(Part.Circle(App.Vector(2.5, 72, 0), App.Vector(0, 0, 1), 10), math.radians(180), math.radians(270)), False)
sketch11.addGeometry(Part.LineSegment(App.Vector(-7.5, 72, 0), App.Vector(-7.5, 97, 0)), False)
sketch11.addGeometry(Part.ArcOfCircle(Part.Circle(App.Vector(2.5, 97, 0), App.Vector(0, 0, 1), 10), math.radians(90), math.radians(180)), False)
sketch11.addGeometry(Part.LineSegment(App.Vector(2.5, 107, 0), App.Vector(17.5, 107, 0)), False)
sketch11.addGeometry(Part.ArcOfCircle(Part.Circle(App.Vector(17.5, 97, 0), App.Vector(0, 0, 1), 10), math.radians(0), math.radians(90)), False)
sketch11.addGeometry(Part.LineSegment(App.Vector(27.5, 97, 0), App.Vector(27.5, 72, 0)), False)
sketch11.addGeometry(Part.ArcOfCircle(Part.Circle(App.Vector(17.5, 72, 0), App.Vector(0, 0, 1), 10), math.radians(-90), math.radians(0)), False)
sketch11.addGeometry(Part.LineSegment(App.Vector(-159.5, 107, 0), App.Vector(-155.5, 107, 0)), False)
sketch11.addGeometry(Part.ArcOfCircle(Part.Circle(App.Vector(-155.5, 97, 0), App.Vector(0, 0, 1), 10), math.radians(0), math.radians(90)), False)
sketch11.addGeometry(Part.LineSegment(App.Vector(-145.5, 97, 0), App.Vector(-145.5, 82, 0)), False)
sketch11.addGeometry(Part.ArcOfCircle(Part.Circle(App.Vector(-155.5, 82, 0), App.Vector(0, 0, 1), 10), math.radians(-90), math.radians(0)), False)
sketch11.addGeometry(Part.LineSegment(App.Vector(-155.5, 72, 0), App.Vector(-159.5, 72, 0)), False)
sketch11.addGeometry(Part.ArcOfCircle(Part.Circle(App.Vector(-159.5, 82, 0), App.Vector(0, 0, 1), 10), math.radians(180), math.radians(270)), False)
sketch11.addGeometry(Part.LineSegment(App.Vector(-169.5, 82, 0), App.Vector(-169.5, 97, 0)), False)
sketch11.addGeometry(Part.ArcOfCircle(Part.Circle(App.Vector(-159.5, 97, 0), App.Vector(0, 0, 1), 10), math.radians(90), math.radians(180)), False)
sketch11.addConstraint(Sketcher.Constraint("Tangent", 5, 2, 6, 2))
sketch11.addConstraint(Sketcher.Constraint("Tangent", 6, 1, 7, 1))
sketch11.addConstraint(Sketcher.Constraint("Tangent", 7, 2, 8, 2))
sketch11.addConstraint(Sketcher.Constraint("Tangent", 8, 1, 9, 1))
sketch11.addConstraint(Sketcher.Constraint("Tangent", 9, 2, 10, 2))
sketch11.addConstraint(Sketcher.Constraint("Tangent", 10, 1, 11, 1))
sketch11.addConstraint(Sketcher.Constraint("Tangent", 11, 2, 12, 2))
sketch11.addConstraint(Sketcher.Constraint("Tangent", 12, 1, 5, 1))
sketch11.addConstraint(Sketcher.Constraint("Tangent", 13, 2, 14, 2))
sketch11.addConstraint(Sketcher.Constraint("Tangent", 14, 1, 15, 1))
sketch11.addConstraint(Sketcher.Constraint("Tangent", 15, 2, 16, 2))
sketch11.addConstraint(Sketcher.Constraint("Tangent", 16, 1, 17, 1))
sketch11.addConstraint(Sketcher.Constraint("Tangent", 17, 2, 18, 2))
sketch11.addConstraint(Sketcher.Constraint("Tangent", 18, 1, 19, 1))
sketch11.addConstraint(Sketcher.Constraint("Tangent", 19, 2, 20, 2))
sketch11.addConstraint(Sketcher.Constraint("Tangent", 20, 1, 13, 1))
sketch11.addConstraint(Sketcher.Constraint("Horizontal", 5))
sketch11.addConstraint(Sketcher.Constraint("Vertical", 7))
sketch11.addConstraint(Sketcher.Constraint("Horizontal", 9))
sketch11.addConstraint(Sketcher.Constraint("Vertical", 11))
sketch11.addConstraint(Sketcher.Constraint("Horizontal", 13))
sketch11.addConstraint(Sketcher.Constraint("Vertical", 15))
sketch11.addConstraint(Sketcher.Constraint("Horizontal", 17))
sketch11.addConstraint(Sketcher.Constraint("Vertical", 19))
sketch11.addConstraint(Sketcher.Constraint("Equal", 0, 1))
sketch11.addConstraint(Sketcher.Constraint("Equal", 1, 2))
sketch11.addConstraint(Sketcher.Constraint("Equal", 2, 3))
sketch11.addConstraint(Sketcher.Constraint("Equal", 3, 4))
sketch11.addConstraint(Sketcher.Constraint("Equal", 6, 8))
sketch11.addConstraint(Sketcher.Constraint("Equal", 8, 10))
sketch11.addConstraint(Sketcher.Constraint("Equal", 10, 12))
sketch11.addConstraint(Sketcher.Constraint("Equal", 12, 14))
sketch11.addConstraint(Sketcher.Constraint("Equal", 14, 16))
sketch11.addConstraint(Sketcher.Constraint("Equal", 16, 18))
sketch11.addConstraint(Sketcher.Constraint("Equal", 18, 20))
sketch11.addConstraint(Sketcher.Constraint("Horizontal", 1, 3, 2, 3))
sketch11.addConstraint(Sketcher.Constraint("Horizontal", 3, 3, 4, 3))
sketch11.addConstraint(Sketcher.Constraint("Horizontal", 10, 3, 14, 3))
sketch11.addConstraint(Sketcher.Constraint("Horizontal", 11, 2, 16, 1))
sketch11.addConstraint(Sketcher.Constraint("Vertical", 0, 3, 1, 3))
sketch11.addConstraint(Sketcher.Constraint("Equal", 9, 15))
sketch11.addConstraint(Sketcher.Constraint("Radius", 6, Q("10 mm")))
sketch11.addConstraint(Sketcher.Constraint("Diameter", 0, Q("3.5 mm")))
sketch11.addConstraint(Sketcher.Constraint("DistanceX", 5, 2, 5, 1, Q("15 mm")))
sketch11.addConstraint(Sketcher.Constraint("DistanceX", 13, 1, 13, 2, Q("4 mm")))
sketch11.addConstraint(Sketcher.Constraint("DistanceY", -1, 1, 0, 3, Q("111 mm")))
sketch11.addConstraint(Sketcher.Constraint("DistanceY", -1, 1, 1, 3, Q("58 mm")))
sketch11.addConstraint(Sketcher.Constraint("DistanceX", 3, 3, -1, 1, Q("150 mm")))
sketch11.addConstraint(Sketcher.Constraint("DistanceY", -1, 1, 3, 3, Q("68 mm")))
sketch11.addConstraint(Sketcher.Constraint("DistanceX", 4, 3, -1, 1, Q("165 mm")))
sketch11.addConstraint(Sketcher.Constraint("DistanceY", -1, 1, 6, 3, Q("72 mm")))
sketch11.addConstraint(Sketcher.Constraint("DistanceX", 1, 3, 2, 3, Q("25 mm")))
sketch11.addConstraint(Sketcher.Constraint("DistanceX", 1, 3, 6, 3, Q("5 mm")))
sketch11.addConstraint(Sketcher.Constraint("DistanceX", 14, 3, 0, 3, Q("153 mm")))
sketch11.addConstraint(Sketcher.Constraint("DistanceX", 0, 3, -1, 1, Q("2.5 mm")))
pocket7 = doc.addObject("PartDesign::Pocket", "Pocket006")
body.addObject(pocket7)
pocket7.Profile = sketch11
pocket7.Length = 10
pocket7.Reversed = True

# Sketch on XZ plane
sketch12 = doc.addObject("Sketcher::SketchObject", "Sketch011")
body.addObject(sketch12)
sketch12.AttachmentSupport = (doc.XZ_Plane, [""])
sketch12.MapMode = "FlatFace"
sketch12.AttachmentOffset = App.Placement(App.Vector(0, 0, 2), App.Rotation())
sketch12.addGeometry(Part.Circle(App.Vector(48.9, 101.3, 0), App.Vector(0, 0, 1), 1.8), False)
sketch12.addGeometry(Part.Circle(App.Vector(90.8, 101.3, 0), App.Vector(0, 0, 1), 1.8), False)
sketch12.addGeometry(Part.Circle(App.Vector(45.7, 35.2, 0), App.Vector(0, 0, 1), 1.8), False)
sketch12.addGeometry(Part.Circle(App.Vector(93.9, 35.2, 0), App.Vector(0, 0, 1), 1.8), False)
sketch12.addGeometry(Part.Circle(App.Vector(51.5, -36.8, 0), App.Vector(0, 0, 1), 1.8), False)
sketch12.addGeometry(Part.Circle(App.Vector(79.5, -36.8, 0), App.Vector(0, 0, 1), 1.8), False)
sketch12.addGeometry(Part.Circle(App.Vector(46.4, -88.9, 0), App.Vector(0, 0, 1), 1.8), False)
sketch12.addGeometry(Part.Circle(App.Vector(94.7, -87.6, 0), App.Vector(0, 0, 1), 1.8), False)
sketch12.addConstraint(Sketcher.Constraint("Equal", 0, 1))
sketch12.addConstraint(Sketcher.Constraint("Equal", 1, 2))
sketch12.addConstraint(Sketcher.Constraint("Equal", 2, 3))
sketch12.addConstraint(Sketcher.Constraint("Equal", 3, 4))
sketch12.addConstraint(Sketcher.Constraint("Equal", 4, 5))
sketch12.addConstraint(Sketcher.Constraint("Equal", 5, 6))
sketch12.addConstraint(Sketcher.Constraint("Equal", 6, 7))
sketch12.addConstraint(Sketcher.Constraint("Horizontal", 4, 3, 5, 3))
sketch12.addConstraint(Sketcher.Constraint("Diameter", 0, Q("3.5 mm")))
sketch12.addConstraint(Sketcher.Constraint("DistanceY", 7, 3, 5, 3, Q("50.8 mm")))
sketch12.addConstraint(Sketcher.Constraint("DistanceY", 6, 3, -1, 1, Q("88.91 mm")))
sketch12.addConstraint(Sketcher.Constraint("DistanceX", 0, 3, 1, 3, Q("41.909999 mm")))
sketch12.addConstraint(Sketcher.Constraint("DistanceX", 2, 3, 3, 3, Q("48.259999 mm")))
sketch12.addConstraint(Sketcher.Constraint("DistanceX", 4, 3, 5, 3, Q("27.94 mm")))
sketch12.addConstraint(Sketcher.Constraint("DistanceX", 6, 3, 4, 3, Q("5.08 mm")))
sketch12.addConstraint(Sketcher.Constraint("DistanceX", 6, 3, 7, 3, Q("48.26 mm")))
sketch12.addConstraint(Sketcher.Constraint("DistanceX", -1, 1, 4, 3, Q("51.527 mm")))
sketch12.addConstraint(Sketcher.Constraint("DistanceY", 4, 3, -1, 1, Q("36.839 mm")))
sketch12.addConstraint(Sketcher.Constraint("DistanceY", -1, 1, 0, 3, Q("101.261332 mm")))
sketch12.addConstraint(Sketcher.Constraint("DistanceY", -1, 1, 1, 3, Q("101.253791 mm")))
sketch12.addConstraint(Sketcher.Constraint("DistanceY", -1, 1, 3, 3, Q("35.213221 mm")))
sketch12.addConstraint(Sketcher.Constraint("DistanceX", 2, 3, 1, 3, Q("45.096881 mm")))
sketch12.addConstraint(Sketcher.Constraint("DistanceX", -1, 1, 0, 3, Q("48.876067 mm")))
sketch12.addConstraint(Sketcher.Constraint("DistanceY", -1, 1, 2, 3, Q("35.221904 mm")))
pocket8 = doc.addObject("PartDesign::Pocket", "Pocket007")
body.addObject(pocket8)
pocket8.Profile = sketch12
pocket8.Length = 10

# Sketch on XZ plane
sketch13 = doc.addObject("Sketcher::SketchObject", "Sketch012")
body.addObject(sketch13)
sketch13.AttachmentSupport = (doc.XZ_Plane, [""])
sketch13.MapMode = "FlatFace"
sketch13.AttachmentOffset = App.Placement(App.Vector(0, 0, 2), App.Rotation())
sketch13.addGeometry(Part.Circle(App.Vector(-60.5, 73, 0), App.Vector(0, 0, 1), 1.8), False)
sketch13.addConstraint(Sketcher.Constraint("Diameter", 0, Q("3.5 mm")))
sketch13.addConstraint(Sketcher.Constraint("DistanceY", -1, 1, 0, 3, Q("73 mm")))
sketch13.addConstraint(Sketcher.Constraint("DistanceX", 0, 3, -1, 1, Q("60.5 mm")))
pocket9 = doc.addObject("PartDesign::Pocket", "Pocket008")
body.addObject(pocket9)
pocket9.Profile = sketch13
pocket9.Type = "ThroughAll"

doc.recompute()
